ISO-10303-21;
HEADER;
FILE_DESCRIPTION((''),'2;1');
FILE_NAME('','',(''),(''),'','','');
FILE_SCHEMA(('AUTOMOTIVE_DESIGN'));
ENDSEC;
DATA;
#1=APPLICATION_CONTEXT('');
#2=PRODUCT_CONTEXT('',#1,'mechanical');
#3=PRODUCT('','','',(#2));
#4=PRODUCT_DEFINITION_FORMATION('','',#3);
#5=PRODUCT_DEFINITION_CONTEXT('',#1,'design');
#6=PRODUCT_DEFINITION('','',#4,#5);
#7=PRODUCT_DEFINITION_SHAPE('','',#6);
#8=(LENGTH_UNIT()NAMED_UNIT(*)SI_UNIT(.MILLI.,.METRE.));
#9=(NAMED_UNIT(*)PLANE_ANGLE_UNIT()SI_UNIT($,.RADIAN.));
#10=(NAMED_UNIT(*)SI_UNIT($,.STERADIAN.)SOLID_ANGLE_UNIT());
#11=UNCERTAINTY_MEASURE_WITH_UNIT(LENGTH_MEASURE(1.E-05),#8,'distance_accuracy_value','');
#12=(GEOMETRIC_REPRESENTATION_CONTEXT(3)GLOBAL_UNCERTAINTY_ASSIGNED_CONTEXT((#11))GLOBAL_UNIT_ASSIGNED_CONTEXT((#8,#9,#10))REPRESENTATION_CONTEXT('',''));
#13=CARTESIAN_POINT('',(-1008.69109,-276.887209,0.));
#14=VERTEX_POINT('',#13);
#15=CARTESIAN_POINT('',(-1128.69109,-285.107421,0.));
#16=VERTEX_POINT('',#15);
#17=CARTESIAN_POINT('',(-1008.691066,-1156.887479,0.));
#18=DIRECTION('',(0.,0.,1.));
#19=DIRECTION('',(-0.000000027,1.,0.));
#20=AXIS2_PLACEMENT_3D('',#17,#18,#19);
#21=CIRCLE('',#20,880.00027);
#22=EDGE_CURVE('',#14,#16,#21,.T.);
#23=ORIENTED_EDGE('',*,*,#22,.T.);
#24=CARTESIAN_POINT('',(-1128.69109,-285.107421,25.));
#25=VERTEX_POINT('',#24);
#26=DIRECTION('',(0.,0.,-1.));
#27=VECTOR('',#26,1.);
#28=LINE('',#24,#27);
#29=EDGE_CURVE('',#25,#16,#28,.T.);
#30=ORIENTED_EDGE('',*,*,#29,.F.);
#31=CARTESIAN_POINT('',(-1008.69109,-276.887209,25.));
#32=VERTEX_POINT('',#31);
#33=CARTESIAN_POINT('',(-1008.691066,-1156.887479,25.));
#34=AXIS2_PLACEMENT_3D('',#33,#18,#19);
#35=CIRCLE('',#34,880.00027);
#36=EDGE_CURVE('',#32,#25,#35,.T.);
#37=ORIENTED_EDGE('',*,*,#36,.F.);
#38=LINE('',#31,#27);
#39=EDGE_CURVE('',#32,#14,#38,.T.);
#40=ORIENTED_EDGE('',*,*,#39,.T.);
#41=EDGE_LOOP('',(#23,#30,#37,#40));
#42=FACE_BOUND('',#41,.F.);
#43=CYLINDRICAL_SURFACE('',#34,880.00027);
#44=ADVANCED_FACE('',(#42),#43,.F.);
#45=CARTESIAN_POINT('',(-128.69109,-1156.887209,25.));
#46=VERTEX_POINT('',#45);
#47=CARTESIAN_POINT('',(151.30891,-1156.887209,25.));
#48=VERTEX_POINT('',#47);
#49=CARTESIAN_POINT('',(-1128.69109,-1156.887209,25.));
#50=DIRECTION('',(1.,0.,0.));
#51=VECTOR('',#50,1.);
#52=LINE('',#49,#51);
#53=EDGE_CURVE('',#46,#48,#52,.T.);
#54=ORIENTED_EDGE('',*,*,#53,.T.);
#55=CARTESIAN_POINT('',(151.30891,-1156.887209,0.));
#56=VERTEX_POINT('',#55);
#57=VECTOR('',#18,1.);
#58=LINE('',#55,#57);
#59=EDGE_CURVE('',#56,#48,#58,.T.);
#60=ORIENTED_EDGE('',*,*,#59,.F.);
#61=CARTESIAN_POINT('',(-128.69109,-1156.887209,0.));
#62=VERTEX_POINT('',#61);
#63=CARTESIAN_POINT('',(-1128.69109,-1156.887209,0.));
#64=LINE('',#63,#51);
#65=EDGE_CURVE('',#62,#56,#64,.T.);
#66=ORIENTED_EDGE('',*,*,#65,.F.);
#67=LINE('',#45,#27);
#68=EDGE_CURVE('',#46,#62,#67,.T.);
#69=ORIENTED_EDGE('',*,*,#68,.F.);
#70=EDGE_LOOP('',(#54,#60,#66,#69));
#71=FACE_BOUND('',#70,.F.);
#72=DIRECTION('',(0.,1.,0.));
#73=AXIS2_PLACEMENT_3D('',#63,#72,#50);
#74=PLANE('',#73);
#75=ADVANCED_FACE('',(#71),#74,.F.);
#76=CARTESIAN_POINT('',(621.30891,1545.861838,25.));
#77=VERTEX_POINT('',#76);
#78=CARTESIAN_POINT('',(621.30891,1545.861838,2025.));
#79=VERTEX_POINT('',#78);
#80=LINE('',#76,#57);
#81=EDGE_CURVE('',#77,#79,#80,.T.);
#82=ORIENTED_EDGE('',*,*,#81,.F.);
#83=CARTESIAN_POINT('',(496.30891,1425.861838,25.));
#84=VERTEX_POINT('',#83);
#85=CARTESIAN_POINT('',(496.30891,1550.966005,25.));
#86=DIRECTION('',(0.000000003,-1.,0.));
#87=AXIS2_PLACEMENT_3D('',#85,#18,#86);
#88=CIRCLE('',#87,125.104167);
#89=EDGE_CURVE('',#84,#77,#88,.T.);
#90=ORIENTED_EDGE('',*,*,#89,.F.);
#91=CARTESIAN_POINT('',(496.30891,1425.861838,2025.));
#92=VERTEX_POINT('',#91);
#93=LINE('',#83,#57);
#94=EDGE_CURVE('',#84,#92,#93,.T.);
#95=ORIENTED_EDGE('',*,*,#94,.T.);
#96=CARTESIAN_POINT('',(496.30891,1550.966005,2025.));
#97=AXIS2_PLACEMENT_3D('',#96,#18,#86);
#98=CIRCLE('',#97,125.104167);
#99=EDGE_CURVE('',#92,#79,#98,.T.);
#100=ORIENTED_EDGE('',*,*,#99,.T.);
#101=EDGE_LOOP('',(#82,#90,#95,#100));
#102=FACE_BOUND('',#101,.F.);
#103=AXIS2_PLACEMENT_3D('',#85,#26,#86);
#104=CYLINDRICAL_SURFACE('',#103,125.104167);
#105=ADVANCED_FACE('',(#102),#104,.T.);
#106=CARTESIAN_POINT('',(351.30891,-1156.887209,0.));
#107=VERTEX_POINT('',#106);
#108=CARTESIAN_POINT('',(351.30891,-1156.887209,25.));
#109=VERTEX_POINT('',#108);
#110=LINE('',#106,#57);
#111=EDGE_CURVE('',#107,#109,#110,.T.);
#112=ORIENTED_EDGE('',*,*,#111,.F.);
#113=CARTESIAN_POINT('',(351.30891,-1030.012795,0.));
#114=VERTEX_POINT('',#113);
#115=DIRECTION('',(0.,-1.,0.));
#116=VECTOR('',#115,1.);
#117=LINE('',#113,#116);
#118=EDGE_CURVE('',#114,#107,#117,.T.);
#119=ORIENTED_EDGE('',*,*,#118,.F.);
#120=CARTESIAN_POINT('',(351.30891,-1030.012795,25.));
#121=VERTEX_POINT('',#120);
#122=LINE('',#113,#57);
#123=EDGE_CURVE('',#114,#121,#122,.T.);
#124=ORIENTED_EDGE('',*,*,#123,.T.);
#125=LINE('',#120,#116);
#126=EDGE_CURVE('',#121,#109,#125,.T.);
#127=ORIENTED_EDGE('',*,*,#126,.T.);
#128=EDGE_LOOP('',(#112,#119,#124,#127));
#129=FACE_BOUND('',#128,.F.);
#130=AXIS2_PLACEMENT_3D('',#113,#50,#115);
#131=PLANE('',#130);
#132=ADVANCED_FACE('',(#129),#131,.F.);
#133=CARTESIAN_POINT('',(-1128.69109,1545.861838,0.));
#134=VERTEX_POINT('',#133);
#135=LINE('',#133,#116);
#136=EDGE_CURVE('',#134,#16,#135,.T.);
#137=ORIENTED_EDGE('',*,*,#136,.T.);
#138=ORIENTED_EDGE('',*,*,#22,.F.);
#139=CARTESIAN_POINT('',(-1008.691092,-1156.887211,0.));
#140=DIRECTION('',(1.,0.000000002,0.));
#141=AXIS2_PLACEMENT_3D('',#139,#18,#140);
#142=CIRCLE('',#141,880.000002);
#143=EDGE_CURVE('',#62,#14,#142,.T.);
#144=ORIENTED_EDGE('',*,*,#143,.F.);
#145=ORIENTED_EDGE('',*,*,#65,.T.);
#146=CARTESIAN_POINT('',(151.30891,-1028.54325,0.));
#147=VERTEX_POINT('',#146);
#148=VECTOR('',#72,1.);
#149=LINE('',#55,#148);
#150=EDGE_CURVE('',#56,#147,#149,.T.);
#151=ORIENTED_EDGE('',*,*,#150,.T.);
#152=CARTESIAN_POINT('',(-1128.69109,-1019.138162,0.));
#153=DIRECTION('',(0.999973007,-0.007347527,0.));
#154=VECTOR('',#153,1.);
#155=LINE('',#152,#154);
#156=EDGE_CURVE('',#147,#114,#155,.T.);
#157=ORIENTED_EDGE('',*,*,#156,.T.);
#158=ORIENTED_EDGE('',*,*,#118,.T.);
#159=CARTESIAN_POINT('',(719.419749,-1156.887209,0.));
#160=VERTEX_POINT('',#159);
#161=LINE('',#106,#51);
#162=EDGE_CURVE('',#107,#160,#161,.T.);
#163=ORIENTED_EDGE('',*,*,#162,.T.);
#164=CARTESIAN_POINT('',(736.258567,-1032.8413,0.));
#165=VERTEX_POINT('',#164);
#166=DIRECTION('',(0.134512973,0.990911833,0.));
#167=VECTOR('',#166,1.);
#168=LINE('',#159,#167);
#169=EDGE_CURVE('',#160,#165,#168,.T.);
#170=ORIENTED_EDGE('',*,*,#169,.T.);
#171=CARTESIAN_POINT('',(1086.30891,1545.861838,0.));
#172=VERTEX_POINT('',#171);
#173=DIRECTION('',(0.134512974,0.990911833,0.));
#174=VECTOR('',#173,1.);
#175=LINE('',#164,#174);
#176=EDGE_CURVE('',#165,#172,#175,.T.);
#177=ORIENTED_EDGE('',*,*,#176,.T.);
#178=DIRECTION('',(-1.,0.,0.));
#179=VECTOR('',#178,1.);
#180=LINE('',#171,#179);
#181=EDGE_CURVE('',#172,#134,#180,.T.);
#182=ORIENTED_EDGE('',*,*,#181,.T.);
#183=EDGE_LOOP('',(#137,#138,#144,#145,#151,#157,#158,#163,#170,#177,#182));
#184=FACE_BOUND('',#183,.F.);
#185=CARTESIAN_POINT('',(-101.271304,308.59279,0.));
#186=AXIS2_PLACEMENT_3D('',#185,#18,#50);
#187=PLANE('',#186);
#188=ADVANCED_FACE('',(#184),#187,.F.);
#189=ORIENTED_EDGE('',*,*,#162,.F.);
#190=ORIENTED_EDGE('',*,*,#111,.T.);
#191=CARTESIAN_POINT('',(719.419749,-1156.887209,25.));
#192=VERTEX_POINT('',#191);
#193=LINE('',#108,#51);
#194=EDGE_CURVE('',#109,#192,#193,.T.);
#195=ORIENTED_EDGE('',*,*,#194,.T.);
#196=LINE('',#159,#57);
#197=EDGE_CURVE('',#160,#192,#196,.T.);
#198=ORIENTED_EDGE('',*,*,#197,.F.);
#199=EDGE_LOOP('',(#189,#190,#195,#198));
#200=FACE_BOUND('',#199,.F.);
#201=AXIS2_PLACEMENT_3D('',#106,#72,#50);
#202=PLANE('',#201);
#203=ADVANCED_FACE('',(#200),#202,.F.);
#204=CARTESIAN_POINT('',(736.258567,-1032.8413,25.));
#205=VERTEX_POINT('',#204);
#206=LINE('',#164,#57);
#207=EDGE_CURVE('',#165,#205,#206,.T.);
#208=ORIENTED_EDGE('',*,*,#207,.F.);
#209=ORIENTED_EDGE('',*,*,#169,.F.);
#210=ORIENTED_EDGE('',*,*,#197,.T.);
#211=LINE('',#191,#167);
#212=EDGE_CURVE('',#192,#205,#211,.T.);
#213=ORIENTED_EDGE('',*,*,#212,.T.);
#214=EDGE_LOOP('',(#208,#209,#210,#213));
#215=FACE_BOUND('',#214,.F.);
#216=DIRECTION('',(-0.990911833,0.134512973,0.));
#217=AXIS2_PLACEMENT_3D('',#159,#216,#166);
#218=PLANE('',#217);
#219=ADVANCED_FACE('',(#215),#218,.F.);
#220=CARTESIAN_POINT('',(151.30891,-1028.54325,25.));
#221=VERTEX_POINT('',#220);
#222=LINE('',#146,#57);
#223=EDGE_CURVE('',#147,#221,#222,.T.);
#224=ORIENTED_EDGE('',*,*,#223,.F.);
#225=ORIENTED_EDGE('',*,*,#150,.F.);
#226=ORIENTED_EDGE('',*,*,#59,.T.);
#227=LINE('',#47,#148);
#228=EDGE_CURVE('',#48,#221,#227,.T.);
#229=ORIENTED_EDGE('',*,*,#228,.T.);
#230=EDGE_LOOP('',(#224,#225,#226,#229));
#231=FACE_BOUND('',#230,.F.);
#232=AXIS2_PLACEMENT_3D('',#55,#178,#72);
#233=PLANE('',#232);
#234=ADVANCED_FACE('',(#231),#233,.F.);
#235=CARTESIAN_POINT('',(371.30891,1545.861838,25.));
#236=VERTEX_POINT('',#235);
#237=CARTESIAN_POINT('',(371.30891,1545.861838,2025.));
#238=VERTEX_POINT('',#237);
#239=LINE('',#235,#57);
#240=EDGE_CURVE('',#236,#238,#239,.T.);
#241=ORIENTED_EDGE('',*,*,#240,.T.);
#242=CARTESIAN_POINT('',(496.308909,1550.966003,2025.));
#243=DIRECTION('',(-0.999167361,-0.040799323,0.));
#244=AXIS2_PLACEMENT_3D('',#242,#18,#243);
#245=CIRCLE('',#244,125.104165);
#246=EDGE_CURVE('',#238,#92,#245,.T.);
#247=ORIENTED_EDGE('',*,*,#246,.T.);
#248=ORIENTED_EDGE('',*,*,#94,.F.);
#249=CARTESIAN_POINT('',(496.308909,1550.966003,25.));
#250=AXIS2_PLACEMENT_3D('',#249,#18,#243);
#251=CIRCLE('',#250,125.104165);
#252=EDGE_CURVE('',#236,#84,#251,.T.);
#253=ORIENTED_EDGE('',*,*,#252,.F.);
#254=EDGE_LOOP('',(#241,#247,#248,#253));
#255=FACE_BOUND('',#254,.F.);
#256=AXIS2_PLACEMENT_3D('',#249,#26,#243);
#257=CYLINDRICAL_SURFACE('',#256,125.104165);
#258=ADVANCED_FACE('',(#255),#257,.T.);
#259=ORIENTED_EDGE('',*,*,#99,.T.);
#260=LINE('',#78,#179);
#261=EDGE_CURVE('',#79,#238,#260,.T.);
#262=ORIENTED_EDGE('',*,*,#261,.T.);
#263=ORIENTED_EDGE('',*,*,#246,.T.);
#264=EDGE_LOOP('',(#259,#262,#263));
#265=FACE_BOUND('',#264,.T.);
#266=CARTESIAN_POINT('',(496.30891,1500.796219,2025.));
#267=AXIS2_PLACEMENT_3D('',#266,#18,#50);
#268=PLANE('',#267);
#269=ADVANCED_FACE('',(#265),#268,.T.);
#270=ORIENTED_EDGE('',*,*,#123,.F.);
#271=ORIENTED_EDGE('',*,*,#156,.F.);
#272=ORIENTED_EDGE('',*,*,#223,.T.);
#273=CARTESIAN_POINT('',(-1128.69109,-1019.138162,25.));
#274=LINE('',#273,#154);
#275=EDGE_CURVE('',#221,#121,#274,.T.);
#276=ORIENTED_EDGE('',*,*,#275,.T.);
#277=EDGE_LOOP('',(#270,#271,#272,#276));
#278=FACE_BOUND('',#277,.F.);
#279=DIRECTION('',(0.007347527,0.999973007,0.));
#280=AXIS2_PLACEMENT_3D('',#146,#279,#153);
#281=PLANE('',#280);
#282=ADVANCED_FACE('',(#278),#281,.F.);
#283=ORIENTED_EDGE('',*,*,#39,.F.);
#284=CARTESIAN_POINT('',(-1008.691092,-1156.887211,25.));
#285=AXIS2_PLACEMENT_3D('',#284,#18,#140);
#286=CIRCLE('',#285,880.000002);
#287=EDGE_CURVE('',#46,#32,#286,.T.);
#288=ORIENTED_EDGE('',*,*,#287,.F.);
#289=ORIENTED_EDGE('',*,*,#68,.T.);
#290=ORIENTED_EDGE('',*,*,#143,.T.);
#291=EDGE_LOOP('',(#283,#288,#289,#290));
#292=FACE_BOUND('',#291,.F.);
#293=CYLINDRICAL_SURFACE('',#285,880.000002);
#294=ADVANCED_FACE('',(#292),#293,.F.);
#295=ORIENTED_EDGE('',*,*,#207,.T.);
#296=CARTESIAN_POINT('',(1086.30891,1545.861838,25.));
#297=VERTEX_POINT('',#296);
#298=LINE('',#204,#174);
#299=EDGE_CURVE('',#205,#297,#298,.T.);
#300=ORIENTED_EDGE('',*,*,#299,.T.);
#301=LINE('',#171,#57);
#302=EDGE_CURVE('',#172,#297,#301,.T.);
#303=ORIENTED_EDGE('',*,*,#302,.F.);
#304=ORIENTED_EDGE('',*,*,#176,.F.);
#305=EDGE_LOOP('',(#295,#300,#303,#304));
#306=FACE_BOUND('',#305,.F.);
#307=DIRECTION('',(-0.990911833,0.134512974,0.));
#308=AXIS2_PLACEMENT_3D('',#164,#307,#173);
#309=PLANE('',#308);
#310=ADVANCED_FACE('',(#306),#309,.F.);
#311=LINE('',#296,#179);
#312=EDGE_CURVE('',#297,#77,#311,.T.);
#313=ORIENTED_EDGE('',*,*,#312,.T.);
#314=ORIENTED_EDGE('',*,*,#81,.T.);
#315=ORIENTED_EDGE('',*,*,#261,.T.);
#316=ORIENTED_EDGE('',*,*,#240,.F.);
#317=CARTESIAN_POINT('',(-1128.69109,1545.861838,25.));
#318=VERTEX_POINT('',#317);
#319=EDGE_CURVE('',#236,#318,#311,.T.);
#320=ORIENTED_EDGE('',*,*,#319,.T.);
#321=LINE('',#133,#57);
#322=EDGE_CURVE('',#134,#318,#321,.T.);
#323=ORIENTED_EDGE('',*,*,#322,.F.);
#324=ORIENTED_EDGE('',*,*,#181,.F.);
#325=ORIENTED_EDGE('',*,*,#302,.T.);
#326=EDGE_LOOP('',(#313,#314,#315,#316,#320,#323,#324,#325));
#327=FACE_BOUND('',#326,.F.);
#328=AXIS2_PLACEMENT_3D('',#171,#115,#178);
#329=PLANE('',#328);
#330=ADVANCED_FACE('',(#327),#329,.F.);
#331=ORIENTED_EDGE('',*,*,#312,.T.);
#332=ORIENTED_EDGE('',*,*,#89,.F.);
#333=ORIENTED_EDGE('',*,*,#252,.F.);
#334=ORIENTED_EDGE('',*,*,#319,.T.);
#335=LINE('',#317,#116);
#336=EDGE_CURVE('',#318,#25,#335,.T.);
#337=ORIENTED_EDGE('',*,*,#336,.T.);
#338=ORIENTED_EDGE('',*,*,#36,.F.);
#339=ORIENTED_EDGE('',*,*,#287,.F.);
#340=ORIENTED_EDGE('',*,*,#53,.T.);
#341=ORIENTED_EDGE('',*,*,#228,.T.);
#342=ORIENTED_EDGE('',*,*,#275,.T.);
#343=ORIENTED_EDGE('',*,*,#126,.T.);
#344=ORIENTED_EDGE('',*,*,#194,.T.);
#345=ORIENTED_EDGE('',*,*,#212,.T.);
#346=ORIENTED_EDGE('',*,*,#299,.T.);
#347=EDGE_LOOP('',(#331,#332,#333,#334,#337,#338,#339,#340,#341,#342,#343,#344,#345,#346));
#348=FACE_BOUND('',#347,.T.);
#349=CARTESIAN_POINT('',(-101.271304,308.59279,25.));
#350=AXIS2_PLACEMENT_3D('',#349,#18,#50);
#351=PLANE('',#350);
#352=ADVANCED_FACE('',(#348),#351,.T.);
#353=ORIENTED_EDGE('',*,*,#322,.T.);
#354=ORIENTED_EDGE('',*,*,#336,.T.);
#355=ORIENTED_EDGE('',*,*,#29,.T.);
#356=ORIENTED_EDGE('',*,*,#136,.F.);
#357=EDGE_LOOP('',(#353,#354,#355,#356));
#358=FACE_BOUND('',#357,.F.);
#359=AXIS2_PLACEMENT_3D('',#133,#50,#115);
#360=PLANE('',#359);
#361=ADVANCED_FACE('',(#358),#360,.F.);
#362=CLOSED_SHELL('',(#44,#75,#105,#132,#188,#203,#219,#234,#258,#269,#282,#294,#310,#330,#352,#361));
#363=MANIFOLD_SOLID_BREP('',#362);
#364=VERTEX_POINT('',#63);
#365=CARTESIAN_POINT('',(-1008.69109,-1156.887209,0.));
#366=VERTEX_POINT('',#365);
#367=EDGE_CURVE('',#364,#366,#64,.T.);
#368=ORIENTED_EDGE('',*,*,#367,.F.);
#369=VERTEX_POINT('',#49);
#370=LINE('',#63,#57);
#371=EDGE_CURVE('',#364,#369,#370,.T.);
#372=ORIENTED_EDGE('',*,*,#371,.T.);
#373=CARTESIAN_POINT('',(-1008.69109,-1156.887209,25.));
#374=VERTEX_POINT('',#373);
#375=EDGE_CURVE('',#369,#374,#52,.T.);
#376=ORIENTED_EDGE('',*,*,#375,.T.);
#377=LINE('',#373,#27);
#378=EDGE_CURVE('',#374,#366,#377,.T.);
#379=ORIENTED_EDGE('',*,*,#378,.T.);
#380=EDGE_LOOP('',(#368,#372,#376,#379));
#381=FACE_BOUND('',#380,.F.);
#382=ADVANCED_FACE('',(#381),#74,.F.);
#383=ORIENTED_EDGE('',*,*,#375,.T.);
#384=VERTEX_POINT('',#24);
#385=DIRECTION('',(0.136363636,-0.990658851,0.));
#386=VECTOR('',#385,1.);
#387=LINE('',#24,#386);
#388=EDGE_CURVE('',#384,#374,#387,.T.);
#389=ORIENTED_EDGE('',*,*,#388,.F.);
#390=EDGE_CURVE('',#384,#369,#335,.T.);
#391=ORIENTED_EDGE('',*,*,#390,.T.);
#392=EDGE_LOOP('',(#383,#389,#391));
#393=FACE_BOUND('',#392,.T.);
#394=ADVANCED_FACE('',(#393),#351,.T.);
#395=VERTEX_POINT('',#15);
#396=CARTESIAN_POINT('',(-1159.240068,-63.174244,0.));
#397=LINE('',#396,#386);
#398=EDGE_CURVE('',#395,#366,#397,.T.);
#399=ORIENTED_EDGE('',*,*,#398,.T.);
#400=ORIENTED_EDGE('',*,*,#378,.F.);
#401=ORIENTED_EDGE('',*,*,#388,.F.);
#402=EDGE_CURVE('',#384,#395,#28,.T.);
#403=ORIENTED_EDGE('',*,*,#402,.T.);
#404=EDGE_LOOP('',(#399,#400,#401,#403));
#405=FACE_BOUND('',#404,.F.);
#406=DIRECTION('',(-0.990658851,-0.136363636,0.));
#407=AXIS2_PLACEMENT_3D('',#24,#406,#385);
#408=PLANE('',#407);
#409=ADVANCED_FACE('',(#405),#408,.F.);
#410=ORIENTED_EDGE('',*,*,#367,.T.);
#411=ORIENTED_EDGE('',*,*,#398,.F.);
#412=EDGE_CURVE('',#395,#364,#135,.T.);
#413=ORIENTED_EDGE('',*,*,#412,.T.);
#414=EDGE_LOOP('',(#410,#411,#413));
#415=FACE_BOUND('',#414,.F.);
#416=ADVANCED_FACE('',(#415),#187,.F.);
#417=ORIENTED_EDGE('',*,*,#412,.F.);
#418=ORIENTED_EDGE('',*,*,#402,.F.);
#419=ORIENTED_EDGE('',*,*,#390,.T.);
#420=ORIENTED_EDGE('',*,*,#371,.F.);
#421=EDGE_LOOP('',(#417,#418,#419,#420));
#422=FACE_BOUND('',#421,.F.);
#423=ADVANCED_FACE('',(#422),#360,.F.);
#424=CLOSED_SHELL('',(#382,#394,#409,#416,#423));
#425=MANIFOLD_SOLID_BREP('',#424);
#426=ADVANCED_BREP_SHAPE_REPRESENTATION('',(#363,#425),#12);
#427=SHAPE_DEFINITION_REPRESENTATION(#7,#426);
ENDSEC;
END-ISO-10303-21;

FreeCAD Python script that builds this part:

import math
import FreeCAD as App
import Part
import Sketcher

V = App.Vector
Q = App.Units.Quantity


def add_polygon(sketch, points):
    """Adds a closed chain of lines whose ends are joined by coincident constraints."""
    first, n = sketch.GeometryCount, len(points)
    for a, b in zip(points, points[1:] + points[:1]):
        sketch.addGeometry(Part.LineSegment(App.Vector(*a, 0), App.Vector(*b, 0)), False)
    for i in range(n):
        sketch.addConstraint(Sketcher.Constraint("Coincident", first + i, 2, first + (i + 1) % n, 1))

doc = App.newDocument("Part")
params = doc.addObject("Spreadsheet::Sheet", "Params")
for row, (alias, value) in enumerate([
    ("sketch1_width", "1280 mm"),
    ("sketch1_width2", "2215 mm"),
    ("pad1_length", "25 mm"),
    ("sketch2_radius", "880.000002 mm"),
    ("sketch2_length", "879.999999 mm"),
    ("sketch3_width", "250 mm"),
    ("pad2_length", "2000 mm"),
], start=1):
    params.set(f"A{row}", alias)
    params.set(f"B{row}", "=" + value)
    params.setAlias(f"B{row}", alias)

body = doc.addObject("PartDesign::Body", "Body")
body.AllowCompound = True

sketch1 = doc.addObject("Sketcher::SketchObject", "Sketch")
body.addObject(sketch1)
sketch1.AttachmentSupport = (doc.XY_Plane, [""])
sketch1.MapMode = "FlatFace"
add_polygon(sketch1, [(-1128.69109, 1545.861838), (-1128.69109, -1156.887209), (151.30891, -1156.887209), (151.30891, -1028.54325), (351.30891, -1030.012795), (351.30891, -1156.887209), (719.419749, -1156.887209), (736.258567, -1032.8413), (1086.30891, 1545.861838)])
sketch1.addConstraint([
    Sketcher.Constraint("Vertical", 0),
    Sketcher.Constraint("Horizontal", 1),
    Sketcher.Constraint("Vertical", 2),
    Sketcher.Constraint("Vertical", 4),
    Sketcher.Constraint("Horizontal", 5),
    Sketcher.Constraint("Horizontal", 8),
    Sketcher.Constraint("Parallel", 6, 7),
    Sketcher.Constraint("Horizontal", 1, 2, 4, 2),
    Sketcher.Constraint("DistanceX", 1, 1, 1, 2, Q("1280 mm")),
    Sketcher.Constraint("DistanceX", 8, 2, 8, 1, Q("2215 mm")),
    Sketcher.Constraint("DistanceX", 2, 2, 3, 2, Q("200 mm")),
    Sketcher.Constraint("Distance", 3, Q("200.005399 mm")),
    Sketcher.Constraint("Distance", 6, Q("125.183598 mm")),
    Sketcher.Constraint("DistanceX", 5, 1, 5, 2, Q("368.110839 mm")),
    Sketcher.Constraint("DistanceY", 2, 1, 2, 2, Q("128.343959 mm")),
    Sketcher.Constraint("DistanceY", 6, 2, -1, 1, Q("1032.8413 mm")),
    Sketcher.Constraint("DistanceY", 0, 2, 0, 1, Q("2702.749047 mm")),
    Sketcher.Constraint("DistanceX", 0, 2, -1, 1, Q("1128.69109 mm")),
])
sketch1.setExpression("Constraints[17]", "Params.sketch1_width")
sketch1.setExpression("Constraints[18]", "Params.sketch1_width2")
pad1 = doc.addObject("PartDesign::Pad", "Pad")
body.addObject(pad1)
pad1.Profile = sketch1
pad1.setExpression("Length", "Params.pad1_length")

sketch2 = doc.addObject("Sketcher::SketchObject", "Sketch001")
body.addObject(sketch2)
sketch2.AttachmentSupport = (doc.XY_Plane, [""])
sketch2.MapMode = "FlatFace"
sketch2.AttachmentOffset = App.Placement(V(0, 0, 25), App.Rotation())
sketch2.addGeometry([
    Part.LineSegment(V(-1009, -1157, 0), V(-129, -1157, 0)),
    Part.ArcOfCircle(Part.Circle(V(-1009, -1157, 0), V(0, 0, 1), 880), math.radians(0), math.radians(90)),
    Part.ArcOfCircle(Part.Circle(V(-1009, -1157, 0), V(0, 0, 1), 880), math.radians(90), math.radians(97.84)),
    Part.LineSegment(V(-1129, -285, 0), V(-1009, -1157, 0)),
], False)
sketch2.addConstraint([
    Sketcher.Constraint("Coincident", 0, 2, 1, 1),
    Sketcher.Constraint("Coincident", 1, 2, 2, 1),
    Sketcher.Constraint("Coincident", 2, 2, 3, 1),
    Sketcher.Constraint("Coincident", 3, 2, 0, 1),
    Sketcher.Constraint("Horizontal", 0),
    Sketcher.Constraint("Coincident", 3, 2, 1, 3),
    Sketcher.Constraint("Vertical", 1, 2, 3, 2),
    Sketcher.Constraint("Radius", 1, Q("880.000002 mm")),
    Sketcher.Constraint("Distance", 3, Q("879.999999 mm")),
    Sketcher.Constraint("Radius", 2, Q("880.00027 mm")),
    Sketcher.Constraint("DistanceX", 1, 3, -1, 1, Q("1008.691092 mm")),
    Sketcher.Constraint("DistanceY", 1, 3, -1, 1, Q("1156.887211 mm")),
    Sketcher.Constraint("Angle", 3, Q("-82.16252 deg")),
])
sketch2.setExpression("Constraints[7]", "Params.sketch2_radius")
sketch2.setExpression("Constraints[8]", "Params.sketch2_length")
pocket1 = doc.addObject("PartDesign::Pocket", "Pocket")
body.addObject(pocket1)
pocket1.Profile = sketch2
pocket1.Type = "ThroughAll"

sketch3 = doc.addObject("Sketcher::SketchObject", "Sketch002")
body.addObject(sketch3)
sketch3.AttachmentSupport = (doc.XY_Plane, [""])
sketch3.MapMode = "FlatFace"
sketch3.AttachmentOffset = App.Placement(V(0, 0, 25), App.Rotation())
sketch3.addGeometry([
    Part.LineSegment(V(621, 1546, 0), V(371, 1546, 0)),
    Part.ArcOfCircle(Part.Circle(V(496, 1551, 0), V(0, 0, 1), 125), math.radians(-178), math.radians(-90)),
    Part.ArcOfCircle(Part.Circle(V(496, 1551, 0), V(0, 0, 1), 125), math.radians(-90), math.radians(-2)),
], False)
sketch3.addConstraint([
    Sketcher.Constraint("Coincident", 0, 2, 1, 1),
    Sketcher.Constraint("Tangent", 1, 2, 2, 1),
    Sketcher.Constraint("Coincident", 2, 2, 0, 1),
    Sketcher.Constraint("Horizontal", 0),
    Sketcher.Constraint("Equal", 1, 2),
    Sketcher.Constraint("Vertical", 2, 3, 1, 2),
    Sketcher.Constraint("DistanceX", 0, 2, 0, 1, Q("250 mm")),
    Sketcher.Constraint("DistanceY", 1, 2, 0, 2, Q("120 mm")),
    Sketcher.Constraint("DistanceX", -1, 1, 1, 3, Q("496.308909 mm")),
    Sketcher.Constraint("DistanceY", -1, 1, 0, 2, Q("1545.861838 mm")),
])
sketch3.setExpression("Constraints[6]", "Params.sketch3_width")
pad2 = doc.addObject("PartDesign::Pad", "Pad001")
body.addObject(pad2)
pad2.Profile = sketch3
pad2.setExpression("Length", "Params.pad2_length")

doc.recompute()
